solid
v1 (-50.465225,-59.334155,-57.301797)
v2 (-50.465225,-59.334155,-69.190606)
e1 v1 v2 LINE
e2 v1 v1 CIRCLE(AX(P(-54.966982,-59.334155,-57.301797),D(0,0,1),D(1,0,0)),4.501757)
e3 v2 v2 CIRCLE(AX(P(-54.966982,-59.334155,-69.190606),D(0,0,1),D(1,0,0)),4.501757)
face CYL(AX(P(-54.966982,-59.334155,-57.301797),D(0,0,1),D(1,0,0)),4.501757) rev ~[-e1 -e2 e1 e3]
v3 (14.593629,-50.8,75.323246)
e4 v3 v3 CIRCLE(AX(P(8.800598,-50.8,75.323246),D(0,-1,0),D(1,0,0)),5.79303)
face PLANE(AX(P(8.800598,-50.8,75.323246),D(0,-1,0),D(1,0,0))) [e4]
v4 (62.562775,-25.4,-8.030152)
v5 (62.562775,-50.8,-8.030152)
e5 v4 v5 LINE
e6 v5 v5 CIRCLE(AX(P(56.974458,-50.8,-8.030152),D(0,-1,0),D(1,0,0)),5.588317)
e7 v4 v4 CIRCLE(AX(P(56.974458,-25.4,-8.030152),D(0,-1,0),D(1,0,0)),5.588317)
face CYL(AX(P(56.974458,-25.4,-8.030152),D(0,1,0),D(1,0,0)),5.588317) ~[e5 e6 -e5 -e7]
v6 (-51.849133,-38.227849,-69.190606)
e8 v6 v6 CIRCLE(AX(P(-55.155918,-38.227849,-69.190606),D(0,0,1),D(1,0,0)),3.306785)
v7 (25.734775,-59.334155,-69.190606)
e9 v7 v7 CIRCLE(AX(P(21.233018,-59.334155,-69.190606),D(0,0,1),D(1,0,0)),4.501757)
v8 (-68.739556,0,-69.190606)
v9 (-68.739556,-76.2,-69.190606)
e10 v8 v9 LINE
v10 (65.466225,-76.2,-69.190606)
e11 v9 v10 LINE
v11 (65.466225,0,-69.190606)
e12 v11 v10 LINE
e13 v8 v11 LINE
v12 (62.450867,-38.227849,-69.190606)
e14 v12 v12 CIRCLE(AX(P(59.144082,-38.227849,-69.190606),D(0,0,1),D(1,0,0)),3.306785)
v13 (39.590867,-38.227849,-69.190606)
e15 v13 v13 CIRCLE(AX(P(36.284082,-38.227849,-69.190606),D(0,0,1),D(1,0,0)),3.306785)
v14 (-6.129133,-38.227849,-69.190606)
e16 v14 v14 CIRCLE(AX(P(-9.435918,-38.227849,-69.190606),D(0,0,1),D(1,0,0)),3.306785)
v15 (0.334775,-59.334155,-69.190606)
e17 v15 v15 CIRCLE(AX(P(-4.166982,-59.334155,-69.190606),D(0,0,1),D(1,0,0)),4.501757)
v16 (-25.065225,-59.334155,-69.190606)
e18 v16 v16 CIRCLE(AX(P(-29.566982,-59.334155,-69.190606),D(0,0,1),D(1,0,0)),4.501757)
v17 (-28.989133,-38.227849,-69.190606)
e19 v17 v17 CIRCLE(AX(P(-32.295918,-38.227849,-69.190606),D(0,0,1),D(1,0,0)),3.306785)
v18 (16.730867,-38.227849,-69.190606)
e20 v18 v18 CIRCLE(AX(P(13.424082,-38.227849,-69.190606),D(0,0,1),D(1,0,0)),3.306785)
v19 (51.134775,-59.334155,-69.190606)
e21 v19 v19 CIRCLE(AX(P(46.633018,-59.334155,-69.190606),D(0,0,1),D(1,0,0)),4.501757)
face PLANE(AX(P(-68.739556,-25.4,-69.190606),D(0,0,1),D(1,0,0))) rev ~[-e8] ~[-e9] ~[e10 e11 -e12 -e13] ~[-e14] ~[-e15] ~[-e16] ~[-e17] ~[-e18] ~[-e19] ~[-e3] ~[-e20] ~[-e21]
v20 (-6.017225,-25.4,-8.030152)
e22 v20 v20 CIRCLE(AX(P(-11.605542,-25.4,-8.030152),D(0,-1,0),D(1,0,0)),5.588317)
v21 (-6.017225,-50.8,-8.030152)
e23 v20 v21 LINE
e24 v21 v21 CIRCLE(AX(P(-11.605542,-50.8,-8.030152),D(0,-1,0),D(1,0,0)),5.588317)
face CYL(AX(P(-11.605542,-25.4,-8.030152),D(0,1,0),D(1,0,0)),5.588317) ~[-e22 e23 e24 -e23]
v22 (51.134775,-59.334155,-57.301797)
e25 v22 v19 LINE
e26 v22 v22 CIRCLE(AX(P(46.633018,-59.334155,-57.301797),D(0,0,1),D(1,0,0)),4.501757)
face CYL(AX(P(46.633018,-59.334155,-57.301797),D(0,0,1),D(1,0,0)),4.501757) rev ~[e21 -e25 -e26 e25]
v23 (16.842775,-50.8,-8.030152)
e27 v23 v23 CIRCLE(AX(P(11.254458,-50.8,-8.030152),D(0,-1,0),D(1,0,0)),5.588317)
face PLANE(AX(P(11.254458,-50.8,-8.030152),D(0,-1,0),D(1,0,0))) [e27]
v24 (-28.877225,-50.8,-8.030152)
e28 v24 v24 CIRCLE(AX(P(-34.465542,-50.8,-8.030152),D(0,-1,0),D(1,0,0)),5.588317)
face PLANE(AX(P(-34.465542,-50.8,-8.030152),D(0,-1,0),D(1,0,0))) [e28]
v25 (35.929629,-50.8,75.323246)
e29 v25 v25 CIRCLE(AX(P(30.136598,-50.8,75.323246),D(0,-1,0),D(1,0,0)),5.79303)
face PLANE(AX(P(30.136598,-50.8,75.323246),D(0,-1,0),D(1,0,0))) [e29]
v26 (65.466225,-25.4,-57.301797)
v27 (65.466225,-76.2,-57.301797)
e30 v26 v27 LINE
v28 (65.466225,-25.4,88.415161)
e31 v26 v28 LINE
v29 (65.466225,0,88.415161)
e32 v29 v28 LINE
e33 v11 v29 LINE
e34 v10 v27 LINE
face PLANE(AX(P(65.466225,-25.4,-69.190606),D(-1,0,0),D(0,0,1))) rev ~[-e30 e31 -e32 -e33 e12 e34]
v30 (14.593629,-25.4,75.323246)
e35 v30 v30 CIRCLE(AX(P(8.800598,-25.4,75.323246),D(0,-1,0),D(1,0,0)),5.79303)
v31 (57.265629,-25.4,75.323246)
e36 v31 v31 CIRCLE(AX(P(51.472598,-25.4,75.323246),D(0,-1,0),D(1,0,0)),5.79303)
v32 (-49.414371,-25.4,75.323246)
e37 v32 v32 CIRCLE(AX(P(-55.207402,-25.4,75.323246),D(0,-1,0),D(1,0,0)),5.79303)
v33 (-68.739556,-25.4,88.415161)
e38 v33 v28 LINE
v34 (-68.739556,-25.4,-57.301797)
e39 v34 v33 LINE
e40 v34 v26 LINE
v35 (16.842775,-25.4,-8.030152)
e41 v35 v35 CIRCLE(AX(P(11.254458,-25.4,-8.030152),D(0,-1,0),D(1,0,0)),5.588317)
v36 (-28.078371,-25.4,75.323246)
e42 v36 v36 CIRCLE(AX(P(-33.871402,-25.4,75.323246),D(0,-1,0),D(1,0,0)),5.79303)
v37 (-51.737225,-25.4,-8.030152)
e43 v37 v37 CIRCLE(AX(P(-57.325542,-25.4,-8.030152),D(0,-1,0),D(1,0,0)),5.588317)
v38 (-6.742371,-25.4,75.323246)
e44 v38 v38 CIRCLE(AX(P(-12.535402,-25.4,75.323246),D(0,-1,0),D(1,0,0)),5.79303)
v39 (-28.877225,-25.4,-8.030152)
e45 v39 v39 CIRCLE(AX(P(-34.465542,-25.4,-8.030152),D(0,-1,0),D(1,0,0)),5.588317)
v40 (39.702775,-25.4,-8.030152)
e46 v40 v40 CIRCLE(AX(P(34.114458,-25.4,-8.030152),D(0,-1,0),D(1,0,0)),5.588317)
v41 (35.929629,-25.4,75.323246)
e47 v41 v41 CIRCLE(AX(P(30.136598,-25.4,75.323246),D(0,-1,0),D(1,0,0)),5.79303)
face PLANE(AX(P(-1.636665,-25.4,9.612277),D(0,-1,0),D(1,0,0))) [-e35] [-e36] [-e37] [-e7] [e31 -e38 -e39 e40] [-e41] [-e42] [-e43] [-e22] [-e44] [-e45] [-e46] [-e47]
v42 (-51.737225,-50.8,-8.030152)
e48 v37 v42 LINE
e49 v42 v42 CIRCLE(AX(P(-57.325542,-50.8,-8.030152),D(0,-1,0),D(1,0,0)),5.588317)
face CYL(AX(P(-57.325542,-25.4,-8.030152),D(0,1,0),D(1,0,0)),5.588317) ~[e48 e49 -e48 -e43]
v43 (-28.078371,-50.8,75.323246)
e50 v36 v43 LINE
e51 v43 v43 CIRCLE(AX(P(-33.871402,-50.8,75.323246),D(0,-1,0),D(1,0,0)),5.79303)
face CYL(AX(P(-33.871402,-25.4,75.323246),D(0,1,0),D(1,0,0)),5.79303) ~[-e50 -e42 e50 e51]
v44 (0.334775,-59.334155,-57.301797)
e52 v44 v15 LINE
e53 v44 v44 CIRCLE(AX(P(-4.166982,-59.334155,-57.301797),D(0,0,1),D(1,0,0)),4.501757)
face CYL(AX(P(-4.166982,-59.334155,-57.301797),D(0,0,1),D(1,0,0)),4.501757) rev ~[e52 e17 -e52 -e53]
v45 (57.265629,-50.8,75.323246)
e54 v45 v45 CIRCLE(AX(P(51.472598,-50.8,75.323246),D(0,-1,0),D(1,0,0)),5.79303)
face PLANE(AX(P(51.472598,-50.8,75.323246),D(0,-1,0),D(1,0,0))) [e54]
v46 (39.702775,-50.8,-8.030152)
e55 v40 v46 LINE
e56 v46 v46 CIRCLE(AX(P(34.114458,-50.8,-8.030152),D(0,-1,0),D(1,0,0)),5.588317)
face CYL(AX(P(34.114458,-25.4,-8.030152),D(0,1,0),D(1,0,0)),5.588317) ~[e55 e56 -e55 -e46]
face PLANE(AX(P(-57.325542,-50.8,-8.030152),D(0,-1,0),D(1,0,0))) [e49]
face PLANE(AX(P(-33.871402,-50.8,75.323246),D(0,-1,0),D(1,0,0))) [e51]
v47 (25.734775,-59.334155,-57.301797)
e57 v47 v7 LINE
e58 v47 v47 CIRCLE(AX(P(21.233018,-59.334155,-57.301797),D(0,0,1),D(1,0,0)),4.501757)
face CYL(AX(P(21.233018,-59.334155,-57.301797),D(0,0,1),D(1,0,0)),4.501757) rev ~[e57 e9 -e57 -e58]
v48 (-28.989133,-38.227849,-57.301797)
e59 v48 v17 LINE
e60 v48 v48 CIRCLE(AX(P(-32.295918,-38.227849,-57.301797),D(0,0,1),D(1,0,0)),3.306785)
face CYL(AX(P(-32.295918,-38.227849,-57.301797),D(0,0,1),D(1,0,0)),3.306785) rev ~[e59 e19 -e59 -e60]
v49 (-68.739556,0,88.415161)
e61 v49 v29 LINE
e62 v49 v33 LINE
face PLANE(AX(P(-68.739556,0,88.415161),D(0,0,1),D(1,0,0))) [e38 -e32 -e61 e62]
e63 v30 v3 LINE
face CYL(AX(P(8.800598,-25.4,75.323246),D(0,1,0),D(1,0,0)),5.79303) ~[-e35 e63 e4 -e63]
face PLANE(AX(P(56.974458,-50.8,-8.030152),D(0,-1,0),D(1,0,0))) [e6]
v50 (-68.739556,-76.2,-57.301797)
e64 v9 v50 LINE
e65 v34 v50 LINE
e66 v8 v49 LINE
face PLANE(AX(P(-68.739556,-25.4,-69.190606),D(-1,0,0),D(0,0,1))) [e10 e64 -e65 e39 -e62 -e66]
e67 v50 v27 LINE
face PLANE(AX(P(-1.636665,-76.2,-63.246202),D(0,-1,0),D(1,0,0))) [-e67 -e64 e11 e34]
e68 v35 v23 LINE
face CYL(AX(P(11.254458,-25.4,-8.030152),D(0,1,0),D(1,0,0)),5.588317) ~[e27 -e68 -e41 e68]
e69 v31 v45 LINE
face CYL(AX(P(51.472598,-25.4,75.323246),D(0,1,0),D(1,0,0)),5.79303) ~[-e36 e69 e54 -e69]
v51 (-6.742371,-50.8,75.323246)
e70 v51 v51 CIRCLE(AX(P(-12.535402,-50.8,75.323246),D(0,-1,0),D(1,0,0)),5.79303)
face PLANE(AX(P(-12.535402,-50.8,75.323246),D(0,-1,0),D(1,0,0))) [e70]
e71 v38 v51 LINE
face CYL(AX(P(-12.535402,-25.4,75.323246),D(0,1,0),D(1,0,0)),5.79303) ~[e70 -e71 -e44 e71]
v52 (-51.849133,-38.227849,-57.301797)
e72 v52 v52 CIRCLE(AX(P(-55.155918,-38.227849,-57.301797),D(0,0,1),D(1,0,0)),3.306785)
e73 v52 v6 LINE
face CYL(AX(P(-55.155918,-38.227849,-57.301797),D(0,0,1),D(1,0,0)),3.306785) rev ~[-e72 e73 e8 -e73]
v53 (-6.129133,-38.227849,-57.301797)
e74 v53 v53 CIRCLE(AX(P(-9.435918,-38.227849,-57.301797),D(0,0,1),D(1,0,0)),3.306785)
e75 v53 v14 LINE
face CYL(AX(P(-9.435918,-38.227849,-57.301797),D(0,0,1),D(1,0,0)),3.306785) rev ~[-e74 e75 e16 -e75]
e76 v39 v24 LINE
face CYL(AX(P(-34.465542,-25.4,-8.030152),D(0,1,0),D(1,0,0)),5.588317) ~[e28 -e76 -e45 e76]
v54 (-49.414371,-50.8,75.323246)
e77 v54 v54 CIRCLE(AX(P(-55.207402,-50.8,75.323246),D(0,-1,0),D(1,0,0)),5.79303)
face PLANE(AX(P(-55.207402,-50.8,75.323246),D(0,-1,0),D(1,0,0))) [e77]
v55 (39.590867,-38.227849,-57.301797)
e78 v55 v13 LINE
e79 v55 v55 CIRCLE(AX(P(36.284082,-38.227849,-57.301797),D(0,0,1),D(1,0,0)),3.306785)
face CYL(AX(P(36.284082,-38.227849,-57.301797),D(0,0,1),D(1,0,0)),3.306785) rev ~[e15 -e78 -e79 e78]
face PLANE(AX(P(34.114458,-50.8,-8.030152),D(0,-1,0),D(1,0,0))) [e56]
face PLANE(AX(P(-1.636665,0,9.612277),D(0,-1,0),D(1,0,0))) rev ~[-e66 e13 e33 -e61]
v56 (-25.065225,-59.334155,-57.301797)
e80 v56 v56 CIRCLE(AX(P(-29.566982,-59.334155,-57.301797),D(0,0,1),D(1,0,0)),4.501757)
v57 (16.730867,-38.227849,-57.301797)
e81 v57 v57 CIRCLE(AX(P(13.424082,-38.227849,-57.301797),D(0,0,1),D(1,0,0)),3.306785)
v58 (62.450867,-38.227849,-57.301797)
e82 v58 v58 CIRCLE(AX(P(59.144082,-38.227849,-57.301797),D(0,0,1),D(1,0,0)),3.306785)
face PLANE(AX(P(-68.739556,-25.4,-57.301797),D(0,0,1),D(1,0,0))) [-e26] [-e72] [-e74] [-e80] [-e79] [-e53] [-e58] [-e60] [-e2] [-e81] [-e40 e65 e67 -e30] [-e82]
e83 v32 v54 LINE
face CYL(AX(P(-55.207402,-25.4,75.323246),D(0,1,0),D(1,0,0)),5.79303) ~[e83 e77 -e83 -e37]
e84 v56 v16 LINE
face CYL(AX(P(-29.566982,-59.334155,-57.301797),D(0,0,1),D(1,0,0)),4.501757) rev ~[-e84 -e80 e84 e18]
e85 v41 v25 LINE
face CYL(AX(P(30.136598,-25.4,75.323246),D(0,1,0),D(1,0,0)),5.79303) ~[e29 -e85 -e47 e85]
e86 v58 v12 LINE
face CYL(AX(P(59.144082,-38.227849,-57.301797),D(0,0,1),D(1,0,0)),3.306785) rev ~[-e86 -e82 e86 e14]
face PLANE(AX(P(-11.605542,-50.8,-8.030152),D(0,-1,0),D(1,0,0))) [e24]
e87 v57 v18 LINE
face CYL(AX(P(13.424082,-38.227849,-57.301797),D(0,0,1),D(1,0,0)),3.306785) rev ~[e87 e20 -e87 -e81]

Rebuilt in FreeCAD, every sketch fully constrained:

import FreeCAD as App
import Part
import Sketcher

V = App.Vector
Q = App.Units.Quantity

doc = App.newDocument("Part")
body = doc.addObject("PartDesign::Body", "Body")

# Sketch on XZ plane
sketch1 = doc.addObject("Sketcher::SketchObject", "Sketch")
body.addObject(sketch1)
sketch1.AttachmentSupport = (doc.XZ_Plane, [""])
sketch1.MapMode = "FlatFace"
sketch1.addGeometry(Part.LineSegment(V(-69, 88, 0), V(-69, -69, 0)), False)
sketch1.addGeometry(Part.LineSegment(V(-69, -69, 0), V(65, -69, 0)), False)
sketch1.addGeometry(Part.LineSegment(V(65, -69, 0), V(65, 88, 0)), False)
sketch1.addGeometry(Part.LineSegment(V(65, 88, 0), V(-69, 88, 0)), False)
sketch1.addConstraint(Sketcher.Constraint("Coincident", 0, 2, 1, 1))
sketch1.addConstraint(Sketcher.Constraint("Coincident", 1, 2, 2, 1))
sketch1.addConstraint(Sketcher.Constraint("Coincident", 2, 2, 3, 1))
sketch1.addConstraint(Sketcher.Constraint("Coincident", 3, 2, 0, 1))
sketch1.addConstraint(Sketcher.Constraint("Vertical", 0))
sketch1.addConstraint(Sketcher.Constraint("Horizontal", 1))
sketch1.addConstraint(Sketcher.Constraint("Vertical", 2))
sketch1.addConstraint(Sketcher.Constraint("Horizontal", 3))
sketch1.addConstraint(Sketcher.Constraint("DistanceX", 1, 1, 1, 2, 134.205781))
sketch1.addConstraint(Sketcher.Constraint("DistanceY", 0, 2, 0, 1, 157.605767))
sketch1.addConstraint(Sketcher.Constraint("DistanceY", -1, 1, 2, 2, 88.415161))
sketch1.addConstraint(Sketcher.Constraint("DistanceX", 0, 2, -1, 1, 68.739556))
pad1 = doc.addObject("PartDesign::Pad", "Pad")
body.addObject(pad1)
pad1.Profile = sketch1
pad1.Length = Q("1 in")

# Sketch on XZ plane
sketch2 = doc.addObject("Sketcher::SketchObject", "Sketch001")
body.addObject(sketch2)
sketch2.AttachmentSupport = (doc.XZ_Plane, [""])
sketch2.MapMode = "FlatFace"
sketch2.AttachmentOffset = App.Placement(V(0, 0, 1 * 25.4), App.Rotation())
sketch2.addGeometry(Part.LineSegment(V(-69, -57, 0), V(-69, -69, 0)), False)
sketch2.addGeometry(Part.LineSegment(V(-69, -69, 0), V(65, -69, 0)), False)
sketch2.addGeometry(Part.LineSegment(V(65, -69, 0), V(65, -57, 0)), False)
sketch2.addGeometry(Part.LineSegment(V(65, -57, 0), V(-69, -57, 0)), False)
sketch2.addConstraint(Sketcher.Constraint("Coincident", 0, 2, 1, 1))
sketch2.addConstraint(Sketcher.Constraint("Coincident", 1, 2, 2, 1))
sketch2.addConstraint(Sketcher.Constraint("Coincident", 2, 2, 3, 1))
sketch2.addConstraint(Sketcher.Constraint("Coincident", 3, 2, 0, 1))
sketch2.addConstraint(Sketcher.Constraint("Vertical", 0))
sketch2.addConstraint(Sketcher.Constraint("Horizontal", 1))
sketch2.addConstraint(Sketcher.Constraint("Vertical", 2))
sketch2.addConstraint(Sketcher.Constraint("Horizontal", 3))
sketch2.addConstraint(Sketcher.Constraint("DistanceX", 1, 1, 1, 2, 134.205781))
sketch2.addConstraint(Sketcher.Constraint("DistanceY", 0, 2, 0, 1, 11.88881))
sketch2.addConstraint(Sketcher.Constraint("DistanceX", 0, 2, -1, 1, 68.739556))
sketch2.addConstraint(Sketcher.Constraint("DistanceY", 0, 2, -1, 1, 69.190606))
pad2 = doc.addObject("PartDesign::Pad", "Pad001")
body.addObject(pad2)
pad2.Profile = sketch2
pad2.Length = Q("2 in")

# Sketch on XY plane
sketch3 = doc.addObject("Sketcher::SketchObject", "Sketch002")
body.addObject(sketch3)
sketch3.AttachmentSupport = (doc.XY_Plane, [""])
sketch3.MapMode = "FlatFace"
sketch3.AttachmentOffset = App.Placement(V(0, 0, -57.301797), App.Rotation())
sketch3.addGeometry(Part.Circle(V(-55.2, -38.2, 0), V(0, 0, 1), 3.3), False)
sketch3.addGeometry(Part.Circle(V(-32.3, -38.2, 0), V(0, 0, 1), 3.3), False)
sketch3.addGeometry(Part.Circle(V(-9.4, -38.2, 0), V(0, 0, 1), 3.3), False)
sketch3.addGeometry(Part.Circle(V(13.4, -38.2, 0), V(0, 0, 1), 3.3), False)
sketch3.addGeometry(Part.Circle(V(36.3, -38.2, 0), V(0, 0, 1), 3.3), False)
sketch3.addGeometry(Part.Circle(V(59.1, -38.2, 0), V(0, 0, 1), 3.3), False)
sketch3.addGeometry(Part.Circle(V(-55, -59.3, 0), V(0, 0, 1), 4.5), False)
sketch3.addGeometry(Part.Circle(V(-29.6, -59.3, 0), V(0, 0, 1), 4.5), False)
sketch3.addGeometry(Part.Circle(V(-4.2, -59.3, 0), V(0, 0, 1), 4.5), False)
sketch3.addGeometry(Part.Circle(V(21.2, -59.3, 0), V(0, 0, 1), 4.5), False)
sketch3.addGeometry(Part.Circle(V(46.6, -59.3, 0), V(0, 0, 1), 4.5), False)
sketch3.addConstraint(Sketcher.Constraint("Equal", 0, 1))
sketch3.addConstraint(Sketcher.Constraint("Equal", 1, 2))
sketch3.addConstraint(Sketcher.Constraint("Equal", 2, 3))
sketch3.addConstraint(Sketcher.Constraint("Equal", 3, 4))
sketch3.addConstraint(Sketcher.Constraint("Equal", 4, 5))
sketch3.addConstraint(Sketcher.Constraint("Equal", 6, 7))
sketch3.addConstraint(Sketcher.Constraint("Equal", 7, 8))
sketch3.addConstraint(Sketcher.Constraint("Equal", 8, 9))
sketch3.addConstraint(Sketcher.Constraint("Equal", 9, 10))
sketch3.addConstraint(Sketcher.Constraint("Horizontal", 0, 3, 1, 3))
sketch3.addConstraint(Sketcher.Constraint("Horizontal", 1, 3, 2, 3))
sketch3.addConstraint(Sketcher.Constraint("Horizontal", 2, 3, 3, 3))
sketch3.addConstraint(Sketcher.Constraint("Horizontal", 3, 3, 4, 3))
sketch3.addConstraint(Sketcher.Constraint("Horizontal", 4, 3, 5, 3))
sketch3.addConstraint(Sketcher.Constraint("Horizontal", 6, 3, 7, 3))
sketch3.addConstraint(Sketcher.Constraint("Horizontal", 7, 3, 8, 3))
sketch3.addConstraint(Sketcher.Constraint("Horizontal", 8, 3, 9, 3))
sketch3.addConstraint(Sketcher.Constraint("Horizontal", 9, 3, 10, 3))
sketch3.addConstraint(Sketcher.Constraint("DistanceX", 6, 3, 7, 3, Q("1 in")))
sketch3.addConstraint(Sketcher.Constraint("DistanceX", 7, 3, 8, 3, Q("1 in")))
sketch3.addConstraint(Sketcher.Constraint("DistanceX", 8, 3, 9, 3, Q("1 in")))
sketch3.addConstraint(Sketcher.Constraint("DistanceX", 9, 3, 10, 3, Q("1 in")))
sketch3.addConstraint(Sketcher.Constraint("DistanceX", 0, 3, 1, 3, Q("0.9 in")))
sketch3.addConstraint(Sketcher.Constraint("DistanceX", 1, 3, 2, 3, Q("0.9 in")))
sketch3.addConstraint(Sketcher.Constraint("DistanceX", 2, 3, 3, 3, Q("0.9 in")))
sketch3.addConstraint(Sketcher.Constraint("DistanceX", 3, 3, 4, 3, Q("0.9 in")))
sketch3.addConstraint(Sketcher.Constraint("DistanceX", 4, 3, 5, 3, Q("0.9 in")))
sketch3.addConstraint(Sketcher.Constraint("Diameter", 0, 6.61357))
sketch3.addConstraint(Sketcher.Constraint("Diameter", 6, 9.003515))
sketch3.addConstraint(Sketcher.Constraint("DistanceX", 0, 3, -1, 1, 55.155918))
sketch3.addConstraint(Sketcher.Constraint("DistanceY", 0, 3, -1, 1, 38.227849))
sketch3.addConstraint(Sketcher.Constraint("DistanceX", 6, 3, -1, 1, 54.966982))
sketch3.addConstraint(Sketcher.Constraint("DistanceY", 6, 3, -1, 1, 59.334155))
pocket1 = doc.addObject("PartDesign::Pocket", "Pocket")
body.addObject(pocket1)
pocket1.Profile = sketch3
pocket1.Length = Q("1 in")

# Sketch on XZ plane
sketch4 = doc.addObject("Sketcher::SketchObject", "Sketch003")
body.addObject(sketch4)
sketch4.AttachmentSupport = (doc.XZ_Plane, [""])
sketch4.MapMode = "FlatFace"
sketch4.AttachmentOffset = App.Placement(V(0, 0, 1 * 25.4), App.Rotation())
sketch4.addGeometry(Part.Circle(V(-55, 75, 0), V(0, 0, 1), 6), False)
sketch4.addGeometry(Part.Circle(V(-34, 75, 0), V(0, 0, 1), 6), False)
sketch4.addGeometry(Part.Circle(V(-13, 75, 0), V(0, 0, 1), 6), False)
sketch4.addGeometry(Part.Circle(V(9, 75, 0), V(0, 0, 1), 6), False)
sketch4.addGeometry(Part.Circle(V(30, 75, 0), V(0, 0, 1), 6), False)
sketch4.addGeometry(Part.Circle(V(51, 75, 0), V(0, 0, 1), 6), False)
sketch4.addGeometry(Part.Circle(V(-57, -8, 0), V(0, 0, 1), 6), False)
sketch4.addGeometry(Part.Circle(V(-34, -8, 0), V(0, 0, 1), 6), False)
sketch4.addGeometry(Part.Circle(V(-12, -8, 0), V(0, 0, 1), 6), False)
sketch4.addGeometry(Part.Circle(V(11, -8, 0), V(0, 0, 1), 6), False)
sketch4.addGeometry(Part.Circle(V(34, -8, 0), V(0, 0, 1), 6), False)
sketch4.addGeometry(Part.Circle(V(57, -8, 0), V(0, 0, 1), 6), False)
sketch4.addConstraint(Sketcher.Constraint("Equal", 0, 1))
sketch4.addConstraint(Sketcher.Constraint("Equal", 1, 2))
sketch4.addConstraint(Sketcher.Constraint("Equal", 2, 3))
sketch4.addConstraint(Sketcher.Constraint("Equal", 3, 4))
sketch4.addConstraint(Sketcher.Constraint("Equal", 4, 5))
sketch4.addConstraint(Sketcher.Constraint("Equal", 6, 7))
sketch4.addConstraint(Sketcher.Constraint("Equal", 7, 8))
sketch4.addConstraint(Sketcher.Constraint("Equal", 8, 9))
sketch4.addConstraint(Sketcher.Constraint("Equal", 9, 10))
sketch4.addConstraint(Sketcher.Constraint("Equal", 10, 11))
sketch4.addConstraint(Sketcher.Constraint("Horizontal", 0, 3, 1, 3))
sketch4.addConstraint(Sketcher.Constraint("Horizontal", 1, 3, 2, 3))
sketch4.addConstraint(Sketcher.Constraint("Horizontal", 2, 3, 3, 3))
sketch4.addConstraint(Sketcher.Constraint("Horizontal", 3, 3, 4, 3))
sketch4.addConstraint(Sketcher.Constraint("Horizontal", 4, 3, 5, 3))
sketch4.addConstraint(Sketcher.Constraint("Horizontal", 6, 3, 7, 3))
sketch4.addConstraint(Sketcher.Constraint("Horizontal", 7, 3, 8, 3))
sketch4.addConstraint(Sketcher.Constraint("Horizontal", 8, 3, 9, 3))
sketch4.addConstraint(Sketcher.Constraint("Horizontal", 9, 3, 10, 3))
sketch4.addConstraint(Sketcher.Constraint("Horizontal", 10, 3, 11, 3))
sketch4.addConstraint(Sketcher.Constraint("DistanceX", 0, 3, 5, 3, Q("4.2 in")))
sketch4.addConstraint(Sketcher.Constraint("DistanceX", 6, 3, 7, 3, Q("0.9 in")))
sketch4.addConstraint(Sketcher.Constraint("DistanceX", 7, 3, 8, 3, Q("0.9 in")))
sketch4.addConstraint(Sketcher.Constraint("DistanceX", 8, 3, 9, 3, Q("0.9 in")))
sketch4.addConstraint(Sketcher.Constraint("DistanceX", 9, 3, 10, 3, Q("0.9 in")))
sketch4.addConstraint(Sketcher.Constraint("DistanceX", 10, 3, 11, 3, Q("0.9 in")))
sketch4.addConstraint(Sketcher.Constraint("DistanceX", 0, 3, 1, 3, Q("0.84 in")))
sketch4.addConstraint(Sketcher.Constraint("DistanceX", 1, 3, 2, 3, Q("0.84 in")))
sketch4.addConstraint(Sketcher.Constraint("DistanceX", 2, 3, 3, 3, Q("0.84 in")))
sketch4.addConstraint(Sketcher.Constraint("DistanceX", 3, 3, 4, 3, Q("0.84 in")))
sketch4.addConstraint(Sketcher.Constraint("Diameter", 0, 11.58606))
sketch4.addConstraint(Sketcher.Constraint("Diameter", 6, 11.176633))
sketch4.addConstraint(Sketcher.Constraint("DistanceX", 0, 3, -1, 1, 55.207402))
sketch4.addConstraint(Sketcher.Constraint("DistanceY", 6, 3, 0, 3, 83.353398))
sketch4.addConstraint(Sketcher.Constraint("DistanceX", 6, 3, -1, 1, 57.325542))
sketch4.addConstraint(Sketcher.Constraint("DistanceY", 6, 3, -1, 1, 8.030152))
pad3 = doc.addObject("PartDesign::Pad", "Pad002")
body.addObject(pad3)
pad3.Profile = sketch4
pad3.Length = Q("1 in")

doc.recompute()
